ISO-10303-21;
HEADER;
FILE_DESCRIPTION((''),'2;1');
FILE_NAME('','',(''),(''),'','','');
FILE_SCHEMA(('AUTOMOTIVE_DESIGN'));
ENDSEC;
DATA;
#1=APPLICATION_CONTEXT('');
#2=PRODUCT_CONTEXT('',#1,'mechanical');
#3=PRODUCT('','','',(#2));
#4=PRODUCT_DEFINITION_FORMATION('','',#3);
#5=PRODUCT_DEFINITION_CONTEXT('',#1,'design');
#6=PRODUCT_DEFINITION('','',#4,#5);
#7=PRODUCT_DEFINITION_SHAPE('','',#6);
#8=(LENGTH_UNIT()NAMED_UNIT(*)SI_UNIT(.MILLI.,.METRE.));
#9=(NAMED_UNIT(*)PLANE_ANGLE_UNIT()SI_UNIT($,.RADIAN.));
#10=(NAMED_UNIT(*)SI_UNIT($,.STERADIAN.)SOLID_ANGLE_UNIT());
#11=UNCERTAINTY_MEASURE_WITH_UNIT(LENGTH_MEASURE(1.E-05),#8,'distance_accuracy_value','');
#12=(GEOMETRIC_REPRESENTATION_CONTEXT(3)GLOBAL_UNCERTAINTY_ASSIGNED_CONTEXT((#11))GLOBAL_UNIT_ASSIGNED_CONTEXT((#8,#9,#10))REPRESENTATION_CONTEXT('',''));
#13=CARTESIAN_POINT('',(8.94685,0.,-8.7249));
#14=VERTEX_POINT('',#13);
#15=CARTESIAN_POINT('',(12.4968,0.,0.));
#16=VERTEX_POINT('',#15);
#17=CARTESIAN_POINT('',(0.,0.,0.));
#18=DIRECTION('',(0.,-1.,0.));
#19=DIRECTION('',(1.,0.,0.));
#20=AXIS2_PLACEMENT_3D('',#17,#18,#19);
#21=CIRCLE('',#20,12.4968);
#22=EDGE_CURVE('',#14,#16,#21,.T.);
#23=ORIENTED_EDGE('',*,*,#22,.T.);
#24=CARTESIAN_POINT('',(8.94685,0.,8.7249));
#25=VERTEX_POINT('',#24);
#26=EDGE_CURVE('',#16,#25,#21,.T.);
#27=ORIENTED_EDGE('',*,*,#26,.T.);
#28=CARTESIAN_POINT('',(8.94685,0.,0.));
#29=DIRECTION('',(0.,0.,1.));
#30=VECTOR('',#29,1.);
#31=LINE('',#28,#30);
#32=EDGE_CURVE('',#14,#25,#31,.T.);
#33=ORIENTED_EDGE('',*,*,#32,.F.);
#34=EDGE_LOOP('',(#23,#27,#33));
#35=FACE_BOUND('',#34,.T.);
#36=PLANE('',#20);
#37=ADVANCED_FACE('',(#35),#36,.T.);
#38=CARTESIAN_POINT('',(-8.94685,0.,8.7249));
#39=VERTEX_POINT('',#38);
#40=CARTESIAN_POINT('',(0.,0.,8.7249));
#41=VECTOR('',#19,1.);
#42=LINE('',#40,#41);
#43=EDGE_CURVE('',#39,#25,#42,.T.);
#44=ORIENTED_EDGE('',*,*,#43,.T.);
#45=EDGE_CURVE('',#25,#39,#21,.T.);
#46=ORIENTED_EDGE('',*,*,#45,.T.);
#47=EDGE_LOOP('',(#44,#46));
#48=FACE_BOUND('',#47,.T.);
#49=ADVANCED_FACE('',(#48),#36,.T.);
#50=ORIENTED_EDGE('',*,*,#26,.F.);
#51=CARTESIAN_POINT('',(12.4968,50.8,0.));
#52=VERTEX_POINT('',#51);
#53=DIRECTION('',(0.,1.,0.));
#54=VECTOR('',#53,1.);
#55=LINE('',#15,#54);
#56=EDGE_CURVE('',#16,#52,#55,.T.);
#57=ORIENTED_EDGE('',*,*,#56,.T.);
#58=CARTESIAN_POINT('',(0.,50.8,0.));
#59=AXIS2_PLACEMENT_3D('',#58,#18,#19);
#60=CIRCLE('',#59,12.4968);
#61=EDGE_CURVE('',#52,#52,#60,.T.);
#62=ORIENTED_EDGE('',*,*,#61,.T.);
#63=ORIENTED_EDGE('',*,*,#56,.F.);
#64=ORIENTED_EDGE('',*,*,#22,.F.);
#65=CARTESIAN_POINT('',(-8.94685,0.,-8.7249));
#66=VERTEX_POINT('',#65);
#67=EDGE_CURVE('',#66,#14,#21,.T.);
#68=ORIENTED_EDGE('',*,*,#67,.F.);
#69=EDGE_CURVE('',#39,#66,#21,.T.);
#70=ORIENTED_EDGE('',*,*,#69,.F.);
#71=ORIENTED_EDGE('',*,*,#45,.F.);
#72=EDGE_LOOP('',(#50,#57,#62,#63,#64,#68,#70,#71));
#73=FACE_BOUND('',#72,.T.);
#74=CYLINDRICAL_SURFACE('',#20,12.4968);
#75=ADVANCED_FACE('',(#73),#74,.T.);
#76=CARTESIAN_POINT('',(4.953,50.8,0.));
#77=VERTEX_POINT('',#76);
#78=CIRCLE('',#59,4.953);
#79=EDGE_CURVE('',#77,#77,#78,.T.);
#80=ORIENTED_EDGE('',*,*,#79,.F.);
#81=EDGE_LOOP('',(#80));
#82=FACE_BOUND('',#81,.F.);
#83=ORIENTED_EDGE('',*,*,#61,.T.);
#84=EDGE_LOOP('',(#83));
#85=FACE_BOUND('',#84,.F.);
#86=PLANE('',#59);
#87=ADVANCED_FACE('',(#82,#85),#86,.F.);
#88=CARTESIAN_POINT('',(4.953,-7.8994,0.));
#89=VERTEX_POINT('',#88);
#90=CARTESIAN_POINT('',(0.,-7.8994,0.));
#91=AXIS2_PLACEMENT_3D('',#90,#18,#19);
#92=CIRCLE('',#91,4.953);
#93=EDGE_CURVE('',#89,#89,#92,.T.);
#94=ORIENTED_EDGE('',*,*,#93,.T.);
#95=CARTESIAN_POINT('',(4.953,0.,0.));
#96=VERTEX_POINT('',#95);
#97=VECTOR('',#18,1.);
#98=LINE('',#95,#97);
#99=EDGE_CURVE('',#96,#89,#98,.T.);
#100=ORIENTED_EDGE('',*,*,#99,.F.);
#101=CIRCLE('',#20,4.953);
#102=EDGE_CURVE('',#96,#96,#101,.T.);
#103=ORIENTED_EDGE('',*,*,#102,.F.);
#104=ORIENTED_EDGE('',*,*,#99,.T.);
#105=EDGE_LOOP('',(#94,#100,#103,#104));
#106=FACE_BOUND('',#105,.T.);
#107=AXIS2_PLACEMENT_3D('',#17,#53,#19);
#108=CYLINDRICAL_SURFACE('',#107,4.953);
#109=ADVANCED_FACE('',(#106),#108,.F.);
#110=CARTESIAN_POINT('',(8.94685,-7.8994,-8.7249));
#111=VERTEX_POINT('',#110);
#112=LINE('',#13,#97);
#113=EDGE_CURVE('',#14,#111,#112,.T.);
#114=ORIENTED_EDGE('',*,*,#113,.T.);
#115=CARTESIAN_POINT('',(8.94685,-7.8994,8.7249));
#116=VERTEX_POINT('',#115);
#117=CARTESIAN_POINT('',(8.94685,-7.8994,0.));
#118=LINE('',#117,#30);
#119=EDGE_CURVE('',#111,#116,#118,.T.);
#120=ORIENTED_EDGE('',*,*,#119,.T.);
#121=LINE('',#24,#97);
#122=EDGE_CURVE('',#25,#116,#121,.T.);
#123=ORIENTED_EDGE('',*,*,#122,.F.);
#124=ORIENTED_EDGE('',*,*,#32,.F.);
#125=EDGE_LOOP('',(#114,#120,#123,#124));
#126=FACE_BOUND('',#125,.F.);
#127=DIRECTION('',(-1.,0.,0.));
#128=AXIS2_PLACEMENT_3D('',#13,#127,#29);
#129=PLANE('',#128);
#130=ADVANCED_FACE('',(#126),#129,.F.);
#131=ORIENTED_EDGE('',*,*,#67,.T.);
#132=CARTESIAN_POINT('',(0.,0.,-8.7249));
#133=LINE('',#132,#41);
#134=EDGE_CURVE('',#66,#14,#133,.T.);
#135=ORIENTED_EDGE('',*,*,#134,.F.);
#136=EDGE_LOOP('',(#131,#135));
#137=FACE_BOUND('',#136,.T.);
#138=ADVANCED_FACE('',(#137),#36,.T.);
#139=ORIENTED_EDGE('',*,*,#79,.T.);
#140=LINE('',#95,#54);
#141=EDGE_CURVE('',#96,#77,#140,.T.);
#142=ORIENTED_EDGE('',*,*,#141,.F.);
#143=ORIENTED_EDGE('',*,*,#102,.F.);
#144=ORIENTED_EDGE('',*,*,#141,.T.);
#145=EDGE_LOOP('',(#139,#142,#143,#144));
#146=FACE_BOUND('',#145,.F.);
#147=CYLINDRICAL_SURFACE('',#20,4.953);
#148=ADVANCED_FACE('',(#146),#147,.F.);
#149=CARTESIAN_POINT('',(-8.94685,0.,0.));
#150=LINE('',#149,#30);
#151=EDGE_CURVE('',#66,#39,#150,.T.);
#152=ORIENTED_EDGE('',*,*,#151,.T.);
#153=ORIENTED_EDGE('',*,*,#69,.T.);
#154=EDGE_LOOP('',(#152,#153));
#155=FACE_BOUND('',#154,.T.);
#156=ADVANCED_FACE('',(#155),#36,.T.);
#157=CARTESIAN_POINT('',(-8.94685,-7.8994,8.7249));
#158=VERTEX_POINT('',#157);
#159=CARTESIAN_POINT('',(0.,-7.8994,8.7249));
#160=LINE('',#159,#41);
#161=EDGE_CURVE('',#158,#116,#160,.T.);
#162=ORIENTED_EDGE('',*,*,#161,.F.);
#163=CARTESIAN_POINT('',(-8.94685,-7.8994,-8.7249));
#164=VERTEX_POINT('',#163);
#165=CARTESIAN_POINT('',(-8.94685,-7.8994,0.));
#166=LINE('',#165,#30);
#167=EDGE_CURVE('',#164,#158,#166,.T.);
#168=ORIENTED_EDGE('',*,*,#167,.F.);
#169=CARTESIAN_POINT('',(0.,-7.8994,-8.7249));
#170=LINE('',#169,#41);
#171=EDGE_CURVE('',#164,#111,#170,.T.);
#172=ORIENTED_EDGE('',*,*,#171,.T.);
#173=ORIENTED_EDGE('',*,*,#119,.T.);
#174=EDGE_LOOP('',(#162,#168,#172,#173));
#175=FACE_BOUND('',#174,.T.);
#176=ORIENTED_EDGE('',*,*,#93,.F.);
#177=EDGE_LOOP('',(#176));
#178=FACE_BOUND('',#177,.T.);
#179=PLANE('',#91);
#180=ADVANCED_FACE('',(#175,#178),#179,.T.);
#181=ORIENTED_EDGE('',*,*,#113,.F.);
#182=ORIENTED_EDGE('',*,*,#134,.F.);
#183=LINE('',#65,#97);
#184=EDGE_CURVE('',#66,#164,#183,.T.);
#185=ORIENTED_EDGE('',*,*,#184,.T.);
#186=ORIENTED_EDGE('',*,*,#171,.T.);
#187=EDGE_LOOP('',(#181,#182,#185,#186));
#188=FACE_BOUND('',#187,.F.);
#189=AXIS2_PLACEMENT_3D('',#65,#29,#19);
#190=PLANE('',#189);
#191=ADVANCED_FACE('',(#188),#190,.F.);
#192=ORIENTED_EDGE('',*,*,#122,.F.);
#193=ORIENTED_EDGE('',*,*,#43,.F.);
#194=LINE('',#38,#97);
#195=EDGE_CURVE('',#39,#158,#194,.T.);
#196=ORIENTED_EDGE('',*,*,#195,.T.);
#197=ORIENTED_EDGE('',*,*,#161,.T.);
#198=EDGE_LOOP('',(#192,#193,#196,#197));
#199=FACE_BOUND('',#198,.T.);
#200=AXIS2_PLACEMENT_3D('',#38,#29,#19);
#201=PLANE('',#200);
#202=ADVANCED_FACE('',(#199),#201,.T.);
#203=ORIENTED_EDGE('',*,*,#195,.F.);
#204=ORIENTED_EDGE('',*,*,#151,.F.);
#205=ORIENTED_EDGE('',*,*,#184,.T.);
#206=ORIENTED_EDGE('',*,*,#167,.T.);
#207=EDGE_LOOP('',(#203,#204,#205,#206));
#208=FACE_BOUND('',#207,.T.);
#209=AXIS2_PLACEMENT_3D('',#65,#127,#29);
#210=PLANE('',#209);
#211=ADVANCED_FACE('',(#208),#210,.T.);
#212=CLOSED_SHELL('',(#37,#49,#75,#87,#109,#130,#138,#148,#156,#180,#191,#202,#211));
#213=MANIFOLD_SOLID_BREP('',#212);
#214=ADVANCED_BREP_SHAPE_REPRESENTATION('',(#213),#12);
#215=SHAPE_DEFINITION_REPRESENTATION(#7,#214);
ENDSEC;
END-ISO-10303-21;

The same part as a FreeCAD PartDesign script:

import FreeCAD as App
import Part
import Sketcher
from FreeCAD import Vector
Q = App.Units.Quantity

doc = App.newDocument("Part")
body = doc.addObject("PartDesign::Body", "Body")

# Sketch on XZ plane
sketch1 = body.newObject("Sketcher::SketchObject", "Sketch")
sketch1.AttachmentSupport = (doc.getObject("XZ_Plane"), [""])
sketch1.MapMode = "FlatFace"
sketch1.addGeometry([
    Part.LineSegment(Vector(-8.9, 8.7, 0), Vector(-8.9, -8.7, 0)),  # 0
    Part.LineSegment(Vector(-8.9, -8.7, 0), Vector(8.9, -8.7, 0)),  # 1
    Part.LineSegment(Vector(8.9, -8.7, 0), Vector(8.9, 8.7, 0)),  # 2
    Part.LineSegment(Vector(8.9, 8.7, 0), Vector(-8.9, 8.7, 0)),  # 3
    Part.Circle(Vector(0, 0, 0), Vector(0, 0, 1), 5),  # 4
], False)
sketch1.addConstraint([
    Sketcher.Constraint("Coincident", 0, 2, 1, 1),
    Sketcher.Constraint("Coincident", 1, 2, 2, 1),
    Sketcher.Constraint("Coincident", 2, 2, 3, 1),
    Sketcher.Constraint("Coincident", 3, 2, 0, 1),
    Sketcher.Constraint("Vertical", 0),
    Sketcher.Constraint("Horizontal", 1),
    Sketcher.Constraint("Vertical", 2),
    Sketcher.Constraint("Horizontal", 3),
    Sketcher.Constraint("Coincident", 4, 3, -1, 1),
    Sketcher.Constraint("Symmetric", 0, 2, 2, 2, -1, 1),
    Sketcher.Constraint("Diameter", 4, Q("0.39 in")),
    Sketcher.Constraint("DistanceY", 0, 2, 0, 1, Q("0.687 in")),
    Sketcher.Constraint("DistanceX", 1, 1, 1, 2, 17.8937),
])
pad1 = body.newObject("PartDesign::Pad", "Pad")
pad1.Profile = sketch1
pad1.Length = Q("0.311 in")

# Sketch on XZ plane
sketch2 = body.newObject("Sketcher::SketchObject", "Sketch001")
sketch2.AttachmentSupport = (doc.getObject("XZ_Plane"), [""])
sketch2.MapMode = "FlatFace"
sketch2.addGeometry(Part.Circle(Vector(0, 0, 0), Vector(0, 0, 1), 12), False)
sketch2.addConstraint([
    Sketcher.Constraint("Coincident", 0, 3, -1, 1),
    Sketcher.Constraint("Diameter", 0, Q("0.984 in")),
])
pad2 = body.newObject("PartDesign::Pad", "Pad001")
pad2.Profile = sketch2
pad2.Length = Q("2 in")
pad2.Reversed = True

# Sketch on XZ plane
sketch3 = body.newObject("Sketcher::SketchObject", "Sketch002")
sketch3.AttachmentSupport = (doc.getObject("XZ_Plane"), [""])
sketch3.MapMode = "FlatFace"
sketch3.addGeometry(Part.Circle(Vector(0, 0, 0), Vector(0, 0, 1), 5), False)
sketch3.addConstraint([
    Sketcher.Constraint("Coincident", 0, 3, -1, 1),
    Sketcher.Constraint("Diameter", 0, Q("0.39 in")),
])
pocket1 = body.newObject("PartDesign::Pocket", "Pocket")
pocket1.Profile = sketch3
pocket1.Length = Q("2 in")

doc.recompute()
